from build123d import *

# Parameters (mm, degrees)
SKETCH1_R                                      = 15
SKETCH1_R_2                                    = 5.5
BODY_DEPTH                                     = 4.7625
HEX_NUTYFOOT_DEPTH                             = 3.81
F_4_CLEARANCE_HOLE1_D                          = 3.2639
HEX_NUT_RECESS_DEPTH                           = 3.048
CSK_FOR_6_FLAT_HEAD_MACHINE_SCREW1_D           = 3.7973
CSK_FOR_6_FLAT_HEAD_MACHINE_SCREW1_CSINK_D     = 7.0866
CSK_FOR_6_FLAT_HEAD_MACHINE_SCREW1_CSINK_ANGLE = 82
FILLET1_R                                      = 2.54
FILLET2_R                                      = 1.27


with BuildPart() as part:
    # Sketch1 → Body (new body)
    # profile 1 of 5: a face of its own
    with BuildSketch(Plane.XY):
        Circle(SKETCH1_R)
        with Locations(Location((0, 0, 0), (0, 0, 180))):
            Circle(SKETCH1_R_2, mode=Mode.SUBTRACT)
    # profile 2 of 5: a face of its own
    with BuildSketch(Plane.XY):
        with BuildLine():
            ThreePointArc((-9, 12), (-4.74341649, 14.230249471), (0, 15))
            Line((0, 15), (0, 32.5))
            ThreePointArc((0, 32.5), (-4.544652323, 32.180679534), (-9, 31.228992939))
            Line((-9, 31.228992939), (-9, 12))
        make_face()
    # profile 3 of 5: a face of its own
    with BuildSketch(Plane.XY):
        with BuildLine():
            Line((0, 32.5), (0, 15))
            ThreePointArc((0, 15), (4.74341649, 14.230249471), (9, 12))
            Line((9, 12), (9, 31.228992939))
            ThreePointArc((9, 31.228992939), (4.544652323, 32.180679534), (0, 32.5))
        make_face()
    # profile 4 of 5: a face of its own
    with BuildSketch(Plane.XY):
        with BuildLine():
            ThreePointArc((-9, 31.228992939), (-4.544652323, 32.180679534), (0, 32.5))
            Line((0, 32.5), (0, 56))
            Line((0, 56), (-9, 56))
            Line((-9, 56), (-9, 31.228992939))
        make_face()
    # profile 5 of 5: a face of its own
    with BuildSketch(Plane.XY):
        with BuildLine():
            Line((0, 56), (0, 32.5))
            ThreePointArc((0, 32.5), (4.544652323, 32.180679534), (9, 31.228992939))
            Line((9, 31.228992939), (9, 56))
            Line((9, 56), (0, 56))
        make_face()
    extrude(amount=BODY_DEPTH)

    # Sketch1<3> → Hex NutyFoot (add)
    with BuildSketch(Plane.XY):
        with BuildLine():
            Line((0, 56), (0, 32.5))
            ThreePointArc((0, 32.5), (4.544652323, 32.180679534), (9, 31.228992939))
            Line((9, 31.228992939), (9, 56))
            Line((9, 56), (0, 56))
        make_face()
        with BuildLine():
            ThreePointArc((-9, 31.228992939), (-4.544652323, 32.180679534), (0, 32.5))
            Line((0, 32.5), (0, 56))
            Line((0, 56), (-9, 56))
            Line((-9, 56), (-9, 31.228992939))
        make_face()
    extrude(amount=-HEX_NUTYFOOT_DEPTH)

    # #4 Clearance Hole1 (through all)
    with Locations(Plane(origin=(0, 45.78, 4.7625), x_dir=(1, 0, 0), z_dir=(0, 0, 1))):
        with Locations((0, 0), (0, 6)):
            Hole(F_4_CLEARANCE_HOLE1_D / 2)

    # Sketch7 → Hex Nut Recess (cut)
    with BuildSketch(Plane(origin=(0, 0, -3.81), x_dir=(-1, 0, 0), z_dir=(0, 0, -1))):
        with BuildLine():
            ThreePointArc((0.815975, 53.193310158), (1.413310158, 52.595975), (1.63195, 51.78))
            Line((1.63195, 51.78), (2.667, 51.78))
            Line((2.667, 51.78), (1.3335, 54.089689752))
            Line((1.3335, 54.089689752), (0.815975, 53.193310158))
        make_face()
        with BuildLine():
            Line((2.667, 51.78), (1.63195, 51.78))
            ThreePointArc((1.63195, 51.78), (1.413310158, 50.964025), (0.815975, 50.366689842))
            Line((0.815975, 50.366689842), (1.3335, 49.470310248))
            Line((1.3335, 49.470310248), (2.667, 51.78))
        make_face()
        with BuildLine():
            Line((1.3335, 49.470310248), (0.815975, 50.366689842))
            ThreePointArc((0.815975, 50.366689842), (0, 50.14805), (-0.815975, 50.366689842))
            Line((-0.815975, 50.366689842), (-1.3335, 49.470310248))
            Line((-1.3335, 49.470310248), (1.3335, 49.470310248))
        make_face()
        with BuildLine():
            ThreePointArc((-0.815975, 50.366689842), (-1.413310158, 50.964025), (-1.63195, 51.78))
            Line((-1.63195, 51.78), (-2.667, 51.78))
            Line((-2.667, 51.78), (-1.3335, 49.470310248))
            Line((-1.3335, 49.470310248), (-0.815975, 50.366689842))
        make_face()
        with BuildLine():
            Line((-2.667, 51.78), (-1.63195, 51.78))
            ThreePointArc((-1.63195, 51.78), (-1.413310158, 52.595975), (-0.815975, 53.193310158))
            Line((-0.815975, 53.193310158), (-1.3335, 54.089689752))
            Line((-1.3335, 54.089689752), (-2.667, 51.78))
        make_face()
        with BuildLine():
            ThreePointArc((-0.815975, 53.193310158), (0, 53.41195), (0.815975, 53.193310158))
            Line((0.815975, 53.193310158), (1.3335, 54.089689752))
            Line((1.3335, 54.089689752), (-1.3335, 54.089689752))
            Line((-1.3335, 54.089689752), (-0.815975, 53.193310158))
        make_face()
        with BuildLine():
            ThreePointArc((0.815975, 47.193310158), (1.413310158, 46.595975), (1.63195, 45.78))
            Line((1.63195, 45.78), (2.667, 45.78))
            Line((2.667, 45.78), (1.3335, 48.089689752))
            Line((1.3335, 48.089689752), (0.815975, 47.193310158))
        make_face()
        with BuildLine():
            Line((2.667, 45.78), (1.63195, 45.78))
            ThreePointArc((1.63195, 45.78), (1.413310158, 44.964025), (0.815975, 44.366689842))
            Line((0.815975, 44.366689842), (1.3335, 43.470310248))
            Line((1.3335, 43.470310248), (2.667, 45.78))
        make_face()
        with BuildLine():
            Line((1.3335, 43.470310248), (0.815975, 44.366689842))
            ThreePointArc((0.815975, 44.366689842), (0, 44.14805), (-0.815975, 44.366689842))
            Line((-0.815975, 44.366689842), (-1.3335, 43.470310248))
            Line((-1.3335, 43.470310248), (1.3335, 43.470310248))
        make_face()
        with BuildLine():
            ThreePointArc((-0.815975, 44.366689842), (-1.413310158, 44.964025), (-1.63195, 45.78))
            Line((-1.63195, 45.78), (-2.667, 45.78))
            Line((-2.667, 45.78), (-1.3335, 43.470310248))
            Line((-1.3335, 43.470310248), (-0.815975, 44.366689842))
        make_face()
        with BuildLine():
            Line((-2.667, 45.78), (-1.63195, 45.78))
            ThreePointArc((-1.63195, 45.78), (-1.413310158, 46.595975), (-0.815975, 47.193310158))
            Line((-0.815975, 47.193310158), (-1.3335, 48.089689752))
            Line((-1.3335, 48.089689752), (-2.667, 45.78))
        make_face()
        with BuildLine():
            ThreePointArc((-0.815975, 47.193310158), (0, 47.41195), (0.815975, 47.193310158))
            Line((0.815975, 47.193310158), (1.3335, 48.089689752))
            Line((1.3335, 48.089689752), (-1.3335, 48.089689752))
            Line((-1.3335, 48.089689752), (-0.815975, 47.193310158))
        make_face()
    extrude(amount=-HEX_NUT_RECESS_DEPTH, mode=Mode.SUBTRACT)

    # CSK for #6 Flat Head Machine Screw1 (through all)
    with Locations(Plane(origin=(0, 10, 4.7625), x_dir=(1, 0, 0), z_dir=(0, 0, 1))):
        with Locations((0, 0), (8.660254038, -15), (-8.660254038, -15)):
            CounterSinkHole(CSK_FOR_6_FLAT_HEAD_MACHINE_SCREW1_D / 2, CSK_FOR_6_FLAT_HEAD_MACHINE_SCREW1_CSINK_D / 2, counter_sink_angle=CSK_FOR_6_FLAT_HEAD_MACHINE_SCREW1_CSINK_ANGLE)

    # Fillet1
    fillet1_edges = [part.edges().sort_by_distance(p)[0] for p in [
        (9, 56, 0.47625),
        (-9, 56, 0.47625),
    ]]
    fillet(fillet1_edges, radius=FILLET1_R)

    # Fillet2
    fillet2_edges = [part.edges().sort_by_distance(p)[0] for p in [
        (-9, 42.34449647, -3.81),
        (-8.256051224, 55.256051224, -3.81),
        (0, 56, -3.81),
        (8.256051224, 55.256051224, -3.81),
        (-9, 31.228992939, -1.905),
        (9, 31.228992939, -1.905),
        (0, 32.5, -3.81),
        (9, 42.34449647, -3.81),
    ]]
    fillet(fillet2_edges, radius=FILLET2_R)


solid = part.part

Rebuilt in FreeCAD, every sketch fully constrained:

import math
import FreeCAD as App
import Part
import Sketcher
Q = App.Units.Quantity


def edges_at(feature, points):
    """Names of the edges that pass closest to the given points."""
    edges = feature.Shape.Edges
    near = lambda p: min(range(len(edges)), key=lambda i: edges[i].distToShape(Part.Vertex(*p))[0])
    return sorted({f"Edge{near(p) + 1}" for p in points})


def add_polygon(sketch, points):
    """Adds a closed chain of lines whose ends are joined by coincident constraints."""
    first, n = sketch.GeometryCount, len(points)
    for a, b in zip(points, points[1:] + points[:1]):
        sketch.addGeometry(Part.LineSegment(App.Vector(*a, 0), App.Vector(*b, 0)), False)
    for i in range(n):
        sketch.addConstraint(Sketcher.Constraint("Coincident", first + i, 2, first + (i + 1) % n, 1))

doc = App.newDocument("Part")
body = doc.addObject("PartDesign::Body", "Body")

# Sketch on XY plane
sketch1 = body.newObject("Sketcher::SketchObject", "Sketch")
sketch1.AttachmentSupport = (doc.getObject("XY_Plane"), [""])
sketch1.MapMode = "FlatFace"
sketch1.addGeometry([
    Part.LineSegment(App.Vector(9, 12, 0), App.Vector(9, 56, 0)),  # 0
    Part.LineSegment(App.Vector(9, 56, 0), App.Vector(-9, 56, 0)),  # 1
    Part.LineSegment(App.Vector(-9, 56, 0), App.Vector(-9, 12, 0)),  # 2
    Part.ArcOfCircle(Part.Circle(App.Vector(0, 0, 0), App.Vector(0, 0, 1), 15), math.radians(127), math.radians(413)),  # 3
    Part.Circle(App.Vector(0, 0, 0), App.Vector(0, 0, 1), 6),  # 4
], False)
sketch1.addConstraint([
    Sketcher.Constraint("Coincident", 0, 2, 1, 1),
    Sketcher.Constraint("Coincident", 1, 2, 2, 1),
    Sketcher.Constraint("Coincident", 2, 2, 3, 1),
    Sketcher.Constraint("Coincident", 3, 2, 0, 1),
    Sketcher.Constraint("Vertical", 0),
    Sketcher.Constraint("Horizontal", 1),
    Sketcher.Constraint("Vertical", 2),
    Sketcher.Constraint("Coincident", 3, 3, -1, 1),
    Sketcher.Constraint("Coincident", 4, 3, -1, 1),
    Sketcher.Constraint("Horizontal", 2, 2, 3, 2),
    Sketcher.Constraint("Diameter", 4, 11.0),
    Sketcher.Constraint("Radius", 3, 15.0),
    Sketcher.Constraint("DistanceX", 1, 2, 1, 1, 18.0),
    Sketcher.Constraint("DistanceY", 0, 1, 0, 2, 44.0),
])
pad1 = body.newObject("PartDesign::Pad", "Pad")
pad1.Profile = sketch1
pad1.Length = Q("0.1875 in")

# Sketch on XY plane
sketch2 = body.newObject("Sketcher::SketchObject", "Sketch001")
sketch2.AttachmentSupport = (doc.getObject("XY_Plane"), [""])
sketch2.MapMode = "FlatFace"
sketch2.addGeometry([
    Part.ArcOfCircle(Part.Circle(App.Vector(0, 0, 0), App.Vector(0, 0, 1), 32), math.radians(73.92), math.radians(90)),  # 0
    Part.LineSegment(App.Vector(9, 31, 0), App.Vector(9, 56, 0)),  # 1
    Part.LineSegment(App.Vector(9, 56, 0), App.Vector(-9, 56, 0)),  # 2
    Part.LineSegment(App.Vector(-9, 56, 0), App.Vector(-9, 31, 0)),  # 3
    Part.ArcOfCircle(Part.Circle(App.Vector(0, 0, 0), App.Vector(0, 0, 1), 32), math.radians(90), math.radians(106.08)),  # 4
], False)
sketch2.addConstraint([
    Sketcher.Constraint("Coincident", 0, 1, 1, 1),
    Sketcher.Constraint("Coincident", 1, 2, 2, 1),
    Sketcher.Constraint("Coincident", 2, 2, 3, 1),
    Sketcher.Constraint("Coincident", 3, 2, 4, 2),
    Sketcher.Constraint("Tangent", 4, 1, 0, 2),
    Sketcher.Constraint("Vertical", 1),
    Sketcher.Constraint("Horizontal", 2),
    Sketcher.Constraint("Vertical", 3),
    Sketcher.Constraint("Coincident", 0, 3, -1, 1),
    Sketcher.Constraint("Equal", 0, 4),
    Sketcher.Constraint("PointOnObject", 4, 1, -2),
    Sketcher.Constraint("Horizontal", 0, 1, 3, 2),
    Sketcher.Constraint("Radius", 0, 32.5),
    Sketcher.Constraint("DistanceX", 2, 2, 2, 1, 18.0),
    Sketcher.Constraint("DistanceY", -1, 1, 1, 2, 56.0),
])
pad2 = body.newObject("PartDesign::Pad", "Pad001")
pad2.Profile = sketch2
pad2.Length = Q("0.15 in")
pad2.Reversed = True

# Sketch on XY plane
sketch3 = body.newObject("Sketcher::SketchObject", "Sketch002")
sketch3.AttachmentSupport = (doc.getObject("XY_Plane"), [""])
sketch3.MapMode = "FlatFace"
sketch3.AttachmentOffset = App.Placement(App.Vector(0, 0, 0.1875 * 25.4), App.Rotation())
sketch3.addGeometry([
    Part.Circle(App.Vector(0, 45.8, 0), App.Vector(0, 0, 1), 1.6),
    Part.Circle(App.Vector(0, 51.8, 0), App.Vector(0, 0, 1), 1.6),
], False)
sketch3.addConstraint([
    Sketcher.Constraint("Equal", 0, 1),
    Sketcher.Constraint("PointOnObject", 0, 3, -2),
    Sketcher.Constraint("PointOnObject", 1, 3, -2),
    Sketcher.Constraint("Diameter", 0, Q("0.1285 in")),
    Sketcher.Constraint("DistanceY", -1, 1, 0, 3, 45.78),
    Sketcher.Constraint("DistanceY", -1, 1, 1, 3, 51.78),
])
doc.recompute()
hole = body.newObject("PartDesign::Hole", "Hole")
hole.Profile = sketch3
hole.ThreadType = "None"
hole.Diameter = Q("0.1285 in")
hole.DepthType = "ThroughAll"

# Sketch on XY plane
sketch4 = body.newObject("Sketcher::SketchObject", "Sketch003")
sketch4.AttachmentSupport = (doc.getObject("XY_Plane"), [""])
sketch4.MapMode = "FlatFace"
sketch4.AttachmentOffset = App.Placement(App.Vector(0, 0, -0.15 * 25.4), App.Rotation())
add_polygon(sketch4, [(1.3, 54.1), (2.7, 51.8), (1.3, 49.5), (-1.3, 49.5), (-2.7, 51.8), (-1.3, 54.1)])  # lines 0-5
sketch4.addGeometry(Part.ArcOfCircle(Part.Circle(App.Vector(0, 51.8, 0), App.Vector(0, 0, 1), 1.6), math.radians(120), math.radians(180)), False)  # 6
sketch4.addGeometry(Part.ArcOfCircle(Part.Circle(App.Vector(0, 51.8, 0), App.Vector(0, 0, 1), 1.6), math.radians(180), math.radians(240)), False)  # 7
sketch4.addGeometry(Part.ArcOfCircle(Part.Circle(App.Vector(0, 51.8, 0), App.Vector(0, 0, 1), 1.6), math.radians(-120), math.radians(-60)), False)  # 8
sketch4.addGeometry(Part.ArcOfCircle(Part.Circle(App.Vector(0, 51.8, 0), App.Vector(0, 0, 1), 1.6), math.radians(-60), math.radians(0)), False)  # 9
sketch4.addGeometry(Part.ArcOfCircle(Part.Circle(App.Vector(0, 51.8, 0), App.Vector(0, 0, 1), 1.6), math.radians(0), math.radians(60)), False)  # 10
sketch4.addGeometry(Part.ArcOfCircle(Part.Circle(App.Vector(0, 51.8, 0), App.Vector(0, 0, 1), 1.6), math.radians(60), math.radians(120)), False)  # 11
add_polygon(sketch4, [(1.3, 48.1), (2.7, 45.8), (1.3, 43.5), (-1.3, 43.5), (-2.7, 45.8), (-1.3, 48.1)])  # lines 12-17
sketch4.addGeometry(Part.ArcOfCircle(Part.Circle(App.Vector(0, 45.8, 0), App.Vector(0, 0, 1), 1.6), math.radians(120), math.radians(180)), False)  # 18
sketch4.addGeometry(Part.ArcOfCircle(Part.Circle(App.Vector(0, 45.8, 0), App.Vector(0, 0, 1), 1.6), math.radians(180), math.radians(240)), False)  # 19
sketch4.addGeometry(Part.ArcOfCircle(Part.Circle(App.Vector(0, 45.8, 0), App.Vector(0, 0, 1), 1.6), math.radians(-120), math.radians(-60)), False)  # 20
sketch4.addGeometry(Part.ArcOfCircle(Part.Circle(App.Vector(0, 45.8, 0), App.Vector(0, 0, 1), 1.6), math.radians(-60), math.radians(0)), False)  # 21
sketch4.addGeometry(Part.ArcOfCircle(Part.Circle(App.Vector(0, 45.8, 0), App.Vector(0, 0, 1), 1.6), math.radians(0), math.radians(60)), False)  # 22
sketch4.addGeometry(Part.ArcOfCircle(Part.Circle(App.Vector(0, 45.8, 0), App.Vector(0, 0, 1), 1.6), math.radians(60), math.radians(120)), False)  # 23
sketch4.addConstraint([
    Sketcher.Constraint("Tangent", 6, 2, 7, 1),
    Sketcher.Constraint("Tangent", 7, 2, 8, 1),
    Sketcher.Constraint("Tangent", 8, 2, 9, 1),
    Sketcher.Constraint("Tangent", 9, 2, 10, 1),
    Sketcher.Constraint("Tangent", 10, 2, 11, 1),
    Sketcher.Constraint("Tangent", 11, 2, 6, 1),
    Sketcher.Constraint("Tangent", 18, 2, 19, 1),
    Sketcher.Constraint("Tangent", 19, 2, 20, 1),
    Sketcher.Constraint("Tangent", 20, 2, 21, 1),
    Sketcher.Constraint("Tangent", 21, 2, 22, 1),
    Sketcher.Constraint("Tangent", 22, 2, 23, 1),
    Sketcher.Constraint("Tangent", 23, 2, 18, 1),
    Sketcher.Constraint("Horizontal", 2),
    Sketcher.Constraint("Horizontal", 5),
    Sketcher.Constraint("Horizontal", 14),
    Sketcher.Constraint("Horizontal", 17),
    Sketcher.Constraint("Coincident", 8, 3, 6, 3),
    Sketcher.Constraint("Coincident", 20, 3, 18, 3),
    Sketcher.Constraint("Equal", 8, 9),
    Sketcher.Constraint("Equal", 11, 18),
    Sketcher.Constraint("Equal", 20, 21),
    Sketcher.Constraint("Symmetric", 0, 2, 3, 2, -2),
    Sketcher.Constraint("Symmetric", 7, 2, 8, 2, -2),
    Sketcher.Constraint("Symmetric", 12, 2, 15, 2, -2),
    Sketcher.Constraint("Symmetric", 19, 2, 20, 2, -2),
    Sketcher.Constraint("Parallel", 0, 3),
    Sketcher.Constraint("Parallel", 1, 4),
    Sketcher.Constraint("Parallel", 3, 12),
    Sketcher.Constraint("Parallel", 4, 13),
    Sketcher.Constraint("Parallel", 12, 15),
    Sketcher.Constraint("Parallel", 13, 16),
    Sketcher.Constraint("Horizontal", 11, 3, 0, 2),
    Sketcher.Constraint("Horizontal", 3, 2, 6, 2),
    Sketcher.Constraint("Horizontal", 6, 2, 9, 2),
    Sketcher.Constraint("Horizontal", 10, 2, 11, 2),
    Sketcher.Constraint("Horizontal", 23, 3, 12, 2),
    Sketcher.Constraint("Horizontal", 15, 2, 18, 2),
    Sketcher.Constraint("Horizontal", 18, 2, 21, 2),
    Sketcher.Constraint("Horizontal", 22, 2, 23, 2),
    Sketcher.Constraint("Vertical", 2, 2, 4, 2),
    Sketcher.Constraint("Vertical", 1, 2, 5, 2),
    Sketcher.Constraint("Vertical", 8, 2, 10, 2),
    Sketcher.Constraint("Vertical", 0, 2, 12, 2),
    Sketcher.Constraint("Vertical", 5, 2, 13, 2),
    Sketcher.Constraint("Vertical", 14, 2, 16, 2),
    Sketcher.Constraint("Vertical", 11, 2, 19, 2),
    Sketcher.Constraint("Vertical", 20, 2, 22, 2),
    Sketcher.Constraint("Angle", 0, Q("-60 deg")),
    Sketcher.Constraint("DistanceX", 2, 2, 2, 1, Q("0.105 in")),
    Sketcher.Constraint("Distance", 0, Q("0.105 in")),
    Sketcher.Constraint("Radius", 6, 1.63195),
    Sketcher.Constraint("DistanceY", -1, 1, 6, 3, 51.78),
    Sketcher.Constraint("DistanceY", -1, 1, 18, 3, 45.78),
    Sketcher.Constraint("DistanceY", 16, 2, 7, 2, 2.277),
])
pocket1 = body.newObject("PartDesign::Pocket", "Pocket")
pocket1.Profile = sketch4
pocket1.Length = Q("0.12 in")
pocket1.Reversed = True

# Sketch on XY plane
sketch5 = body.newObject("Sketcher::SketchObject", "Sketch004")
sketch5.AttachmentSupport = (doc.getObject("XY_Plane"), [""])
sketch5.MapMode = "FlatFace"
sketch5.AttachmentOffset = App.Placement(App.Vector(0, 0, 0.1875 * 25.4), App.Rotation())
sketch5.addGeometry([
    Part.Circle(App.Vector(0, 10, 0), App.Vector(0, 0, 1), 1.9),
    Part.Circle(App.Vector(8.7, -5, 0), App.Vector(0, 0, 1), 1.9),
    Part.Circle(App.Vector(-8.7, -5, 0), App.Vector(0, 0, 1), 1.9),
], False)
sketch5.addConstraint([
    Sketcher.Constraint("Equal", 0, 1),
    Sketcher.Constraint("Equal", 1, 2),
    Sketcher.Constraint("Symmetric", 1, 3, 2, 3, -2),
    Sketcher.Constraint("PointOnObject", 0, 3, -2),
    Sketcher.Constraint("Diameter", 0, Q("0.1495 in")),
    Sketcher.Constraint("DistanceY", -1, 1, 0, 3, 10.0),
    Sketcher.Constraint("DistanceY", 1, 3, -1, 1, 5.0),
    Sketcher.Constraint("DistanceX", 2, 3, 1, 3, 17.320508),
])
doc.recompute()
hole2 = body.newObject("PartDesign::Hole", "Hole001")
hole2.Profile = sketch5
hole2.ThreadType = "None"
hole2.Diameter = Q("0.1495 in")
hole2.DepthType = "ThroughAll"
hole2.HoleCutType = "Countersink"
hole2.HoleCutDiameter = Q("0.279 in")
hole2.HoleCutCountersinkAngle = 82
doc.recompute()

fillet = body.newObject("PartDesign::Fillet", "Fillet")
fillet.Base = (hole2, edges_at(hole2, [(9, 56, 0.476), (-9, 56, 0.476)]))
fillet.Radius = Q("0.1 in")
doc.recompute()

fillet2 = body.newObject("PartDesign::Fillet", "Fillet001")
fillet2.Base = (fillet, edges_at(fillet, [
    (-9, 42.344, -3.81),
    (-8.256, 55.256, -3.81),
    (0, 56, -3.81),
    (8.256, 55.256, -3.81),
    (-9, 31.229, -1.905),
    (9, 31.229, -1.905),
    (4.545, 32.181, -3.81),
    (9, 42.344, -3.81),
]))
fillet2.Radius = Q("0.05 in")

doc.recompute()
